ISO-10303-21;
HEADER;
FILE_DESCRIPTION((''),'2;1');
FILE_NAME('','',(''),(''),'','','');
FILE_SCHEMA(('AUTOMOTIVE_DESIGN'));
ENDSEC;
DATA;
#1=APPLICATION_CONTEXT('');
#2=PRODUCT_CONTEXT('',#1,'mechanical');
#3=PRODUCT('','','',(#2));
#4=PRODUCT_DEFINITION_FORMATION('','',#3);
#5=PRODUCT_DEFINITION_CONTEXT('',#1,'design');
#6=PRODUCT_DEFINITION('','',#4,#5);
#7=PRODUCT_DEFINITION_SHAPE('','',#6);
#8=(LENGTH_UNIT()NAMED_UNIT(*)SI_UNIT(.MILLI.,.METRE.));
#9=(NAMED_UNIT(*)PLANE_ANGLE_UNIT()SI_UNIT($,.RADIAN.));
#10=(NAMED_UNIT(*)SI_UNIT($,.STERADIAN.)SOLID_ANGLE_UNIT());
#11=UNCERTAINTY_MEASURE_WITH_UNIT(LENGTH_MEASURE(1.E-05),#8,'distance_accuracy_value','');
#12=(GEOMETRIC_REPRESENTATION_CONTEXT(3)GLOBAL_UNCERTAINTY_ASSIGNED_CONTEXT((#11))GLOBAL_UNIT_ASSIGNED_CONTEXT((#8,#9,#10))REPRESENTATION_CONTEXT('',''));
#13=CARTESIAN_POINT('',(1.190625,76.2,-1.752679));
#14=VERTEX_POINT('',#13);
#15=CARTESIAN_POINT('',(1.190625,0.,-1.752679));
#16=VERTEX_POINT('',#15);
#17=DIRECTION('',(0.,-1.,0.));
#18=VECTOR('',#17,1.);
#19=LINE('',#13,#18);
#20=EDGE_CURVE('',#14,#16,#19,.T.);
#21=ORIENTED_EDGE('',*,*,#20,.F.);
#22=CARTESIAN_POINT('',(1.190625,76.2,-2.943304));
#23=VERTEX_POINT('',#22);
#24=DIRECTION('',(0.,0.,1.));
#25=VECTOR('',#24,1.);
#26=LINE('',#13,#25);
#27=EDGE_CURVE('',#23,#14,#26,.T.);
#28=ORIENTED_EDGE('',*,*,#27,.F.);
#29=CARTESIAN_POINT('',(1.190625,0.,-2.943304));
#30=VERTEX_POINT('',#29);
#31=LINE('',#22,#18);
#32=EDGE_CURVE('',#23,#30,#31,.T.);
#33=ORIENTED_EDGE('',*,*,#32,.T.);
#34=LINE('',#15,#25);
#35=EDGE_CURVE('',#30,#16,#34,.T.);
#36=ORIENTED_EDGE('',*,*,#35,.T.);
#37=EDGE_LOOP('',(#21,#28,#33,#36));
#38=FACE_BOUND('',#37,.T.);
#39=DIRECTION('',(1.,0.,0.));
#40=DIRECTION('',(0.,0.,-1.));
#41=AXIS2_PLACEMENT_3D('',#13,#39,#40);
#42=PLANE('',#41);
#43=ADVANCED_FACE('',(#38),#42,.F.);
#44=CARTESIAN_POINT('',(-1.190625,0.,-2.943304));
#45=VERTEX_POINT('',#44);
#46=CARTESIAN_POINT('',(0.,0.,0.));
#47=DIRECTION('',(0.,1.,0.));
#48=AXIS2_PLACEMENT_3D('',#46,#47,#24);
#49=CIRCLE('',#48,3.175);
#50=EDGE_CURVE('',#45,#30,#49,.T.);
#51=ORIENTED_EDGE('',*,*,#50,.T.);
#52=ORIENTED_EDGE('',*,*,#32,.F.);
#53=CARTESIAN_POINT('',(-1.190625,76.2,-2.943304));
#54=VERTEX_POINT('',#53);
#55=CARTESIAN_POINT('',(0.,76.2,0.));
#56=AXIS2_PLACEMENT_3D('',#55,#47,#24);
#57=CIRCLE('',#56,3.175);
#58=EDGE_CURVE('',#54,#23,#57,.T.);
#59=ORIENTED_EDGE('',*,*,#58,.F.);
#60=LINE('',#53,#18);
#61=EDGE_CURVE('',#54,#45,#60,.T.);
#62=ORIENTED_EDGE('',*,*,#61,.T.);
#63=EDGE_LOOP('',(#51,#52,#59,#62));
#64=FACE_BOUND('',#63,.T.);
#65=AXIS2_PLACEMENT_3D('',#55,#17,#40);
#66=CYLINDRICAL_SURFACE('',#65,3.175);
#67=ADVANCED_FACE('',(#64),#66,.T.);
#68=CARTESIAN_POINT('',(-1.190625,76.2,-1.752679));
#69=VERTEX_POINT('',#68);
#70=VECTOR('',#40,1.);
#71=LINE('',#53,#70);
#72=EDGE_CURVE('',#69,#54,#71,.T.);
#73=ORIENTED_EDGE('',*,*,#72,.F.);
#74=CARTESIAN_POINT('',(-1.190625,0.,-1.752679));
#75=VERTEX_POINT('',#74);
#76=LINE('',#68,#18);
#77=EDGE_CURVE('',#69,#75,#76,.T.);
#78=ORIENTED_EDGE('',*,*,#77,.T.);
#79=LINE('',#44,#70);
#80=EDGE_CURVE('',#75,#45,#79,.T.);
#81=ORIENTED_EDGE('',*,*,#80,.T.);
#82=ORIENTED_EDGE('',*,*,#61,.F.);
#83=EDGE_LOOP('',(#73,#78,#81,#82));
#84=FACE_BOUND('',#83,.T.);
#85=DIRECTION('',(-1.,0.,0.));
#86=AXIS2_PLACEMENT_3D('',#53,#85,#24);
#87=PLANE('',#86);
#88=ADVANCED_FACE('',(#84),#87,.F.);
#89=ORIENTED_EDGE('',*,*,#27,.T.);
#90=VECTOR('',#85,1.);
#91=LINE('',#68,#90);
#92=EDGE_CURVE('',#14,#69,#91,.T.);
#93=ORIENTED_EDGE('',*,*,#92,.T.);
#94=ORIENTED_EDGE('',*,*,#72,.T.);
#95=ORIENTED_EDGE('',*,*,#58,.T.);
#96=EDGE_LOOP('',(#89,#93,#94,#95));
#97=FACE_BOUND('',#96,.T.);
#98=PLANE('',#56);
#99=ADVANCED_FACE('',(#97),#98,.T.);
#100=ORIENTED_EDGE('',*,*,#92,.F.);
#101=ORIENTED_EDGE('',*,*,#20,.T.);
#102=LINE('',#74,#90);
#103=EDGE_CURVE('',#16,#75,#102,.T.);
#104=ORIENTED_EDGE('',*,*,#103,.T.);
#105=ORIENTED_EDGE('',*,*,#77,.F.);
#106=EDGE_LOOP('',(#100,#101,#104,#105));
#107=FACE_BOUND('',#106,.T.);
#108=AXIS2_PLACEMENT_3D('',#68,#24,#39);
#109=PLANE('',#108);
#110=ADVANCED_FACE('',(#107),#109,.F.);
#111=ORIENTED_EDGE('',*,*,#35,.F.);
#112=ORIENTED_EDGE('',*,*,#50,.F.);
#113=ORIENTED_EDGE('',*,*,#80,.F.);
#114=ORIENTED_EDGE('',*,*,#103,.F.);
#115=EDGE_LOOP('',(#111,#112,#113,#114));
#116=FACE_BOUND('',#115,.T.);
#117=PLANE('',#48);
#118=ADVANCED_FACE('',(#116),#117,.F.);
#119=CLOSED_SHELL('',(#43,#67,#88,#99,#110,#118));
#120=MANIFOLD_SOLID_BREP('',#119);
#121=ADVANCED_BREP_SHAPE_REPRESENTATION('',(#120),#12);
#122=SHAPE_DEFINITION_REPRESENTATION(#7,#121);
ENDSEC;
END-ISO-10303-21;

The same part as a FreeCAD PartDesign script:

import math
import FreeCAD as App
import Part
import Sketcher
from FreeCAD import Vector
Q = App.Units.Quantity

doc = App.newDocument("Part")
body = doc.addObject("PartDesign::Body", "Body")

# Sketch on XZ plane
sketch1 = body.newObject("Sketcher::SketchObject", "Sketch")
sketch1.AttachmentSupport = (doc.getObject("XZ_Plane"), [""])
sketch1.MapMode = "FlatFace"
sketch1.addGeometry(Part.LineSegment(Vector(-1.2, -1.8, 0), Vector(-1.2, -2.9, 0)), False)
sketch1.addGeometry(Part.ArcOfCircle(Part.Circle(Vector(0, 0, 0), Vector(0, 0, 1), 3.2), math.radians(-68), math.radians(248)), False)
sketch1.addGeometry(Part.LineSegment(Vector(1.2, -2.9, 0), Vector(1.2, -1.8, 0)), False)
sketch1.addGeometry(Part.LineSegment(Vector(1.2, -1.8, 0), Vector(-1.2, -1.8, 0)), False)
sketch1.addConstraint(Sketcher.Constraint("Coincident", 0, 2, 1, 2))
sketch1.addConstraint(Sketcher.Constraint("Coincident", 1, 1, 2, 1))
sketch1.addConstraint(Sketcher.Constraint("Coincident", 2, 2, 3, 1))
sketch1.addConstraint(Sketcher.Constraint("Coincident", 3, 2, 0, 1))
sketch1.addConstraint(Sketcher.Constraint("Vertical", 0))
sketch1.addConstraint(Sketcher.Constraint("Vertical", 2))
sketch1.addConstraint(Sketcher.Constraint("Horizontal", 3))
sketch1.addConstraint(Sketcher.Constraint("Coincident", 1, 3, -1, 1))
sketch1.addConstraint(Sketcher.Constraint("Horizontal", 0, 2, 1, 1))
sketch1.addConstraint(Sketcher.Constraint("Radius", 1, Q("0.125 in")))
sketch1.addConstraint(Sketcher.Constraint("DistanceX", 3, 2, 3, 1, Q("0.09375 in")))
sketch1.addConstraint(Sketcher.Constraint("DistanceY", 0, 2, 0, 1, Q("0.046875 in")))
pad1 = body.newObject("PartDesign::Pad", "Pad")
pad1.Profile = sketch1
pad1.Length = Q("3 in")
pad1.Reversed = True

doc.recompute()
